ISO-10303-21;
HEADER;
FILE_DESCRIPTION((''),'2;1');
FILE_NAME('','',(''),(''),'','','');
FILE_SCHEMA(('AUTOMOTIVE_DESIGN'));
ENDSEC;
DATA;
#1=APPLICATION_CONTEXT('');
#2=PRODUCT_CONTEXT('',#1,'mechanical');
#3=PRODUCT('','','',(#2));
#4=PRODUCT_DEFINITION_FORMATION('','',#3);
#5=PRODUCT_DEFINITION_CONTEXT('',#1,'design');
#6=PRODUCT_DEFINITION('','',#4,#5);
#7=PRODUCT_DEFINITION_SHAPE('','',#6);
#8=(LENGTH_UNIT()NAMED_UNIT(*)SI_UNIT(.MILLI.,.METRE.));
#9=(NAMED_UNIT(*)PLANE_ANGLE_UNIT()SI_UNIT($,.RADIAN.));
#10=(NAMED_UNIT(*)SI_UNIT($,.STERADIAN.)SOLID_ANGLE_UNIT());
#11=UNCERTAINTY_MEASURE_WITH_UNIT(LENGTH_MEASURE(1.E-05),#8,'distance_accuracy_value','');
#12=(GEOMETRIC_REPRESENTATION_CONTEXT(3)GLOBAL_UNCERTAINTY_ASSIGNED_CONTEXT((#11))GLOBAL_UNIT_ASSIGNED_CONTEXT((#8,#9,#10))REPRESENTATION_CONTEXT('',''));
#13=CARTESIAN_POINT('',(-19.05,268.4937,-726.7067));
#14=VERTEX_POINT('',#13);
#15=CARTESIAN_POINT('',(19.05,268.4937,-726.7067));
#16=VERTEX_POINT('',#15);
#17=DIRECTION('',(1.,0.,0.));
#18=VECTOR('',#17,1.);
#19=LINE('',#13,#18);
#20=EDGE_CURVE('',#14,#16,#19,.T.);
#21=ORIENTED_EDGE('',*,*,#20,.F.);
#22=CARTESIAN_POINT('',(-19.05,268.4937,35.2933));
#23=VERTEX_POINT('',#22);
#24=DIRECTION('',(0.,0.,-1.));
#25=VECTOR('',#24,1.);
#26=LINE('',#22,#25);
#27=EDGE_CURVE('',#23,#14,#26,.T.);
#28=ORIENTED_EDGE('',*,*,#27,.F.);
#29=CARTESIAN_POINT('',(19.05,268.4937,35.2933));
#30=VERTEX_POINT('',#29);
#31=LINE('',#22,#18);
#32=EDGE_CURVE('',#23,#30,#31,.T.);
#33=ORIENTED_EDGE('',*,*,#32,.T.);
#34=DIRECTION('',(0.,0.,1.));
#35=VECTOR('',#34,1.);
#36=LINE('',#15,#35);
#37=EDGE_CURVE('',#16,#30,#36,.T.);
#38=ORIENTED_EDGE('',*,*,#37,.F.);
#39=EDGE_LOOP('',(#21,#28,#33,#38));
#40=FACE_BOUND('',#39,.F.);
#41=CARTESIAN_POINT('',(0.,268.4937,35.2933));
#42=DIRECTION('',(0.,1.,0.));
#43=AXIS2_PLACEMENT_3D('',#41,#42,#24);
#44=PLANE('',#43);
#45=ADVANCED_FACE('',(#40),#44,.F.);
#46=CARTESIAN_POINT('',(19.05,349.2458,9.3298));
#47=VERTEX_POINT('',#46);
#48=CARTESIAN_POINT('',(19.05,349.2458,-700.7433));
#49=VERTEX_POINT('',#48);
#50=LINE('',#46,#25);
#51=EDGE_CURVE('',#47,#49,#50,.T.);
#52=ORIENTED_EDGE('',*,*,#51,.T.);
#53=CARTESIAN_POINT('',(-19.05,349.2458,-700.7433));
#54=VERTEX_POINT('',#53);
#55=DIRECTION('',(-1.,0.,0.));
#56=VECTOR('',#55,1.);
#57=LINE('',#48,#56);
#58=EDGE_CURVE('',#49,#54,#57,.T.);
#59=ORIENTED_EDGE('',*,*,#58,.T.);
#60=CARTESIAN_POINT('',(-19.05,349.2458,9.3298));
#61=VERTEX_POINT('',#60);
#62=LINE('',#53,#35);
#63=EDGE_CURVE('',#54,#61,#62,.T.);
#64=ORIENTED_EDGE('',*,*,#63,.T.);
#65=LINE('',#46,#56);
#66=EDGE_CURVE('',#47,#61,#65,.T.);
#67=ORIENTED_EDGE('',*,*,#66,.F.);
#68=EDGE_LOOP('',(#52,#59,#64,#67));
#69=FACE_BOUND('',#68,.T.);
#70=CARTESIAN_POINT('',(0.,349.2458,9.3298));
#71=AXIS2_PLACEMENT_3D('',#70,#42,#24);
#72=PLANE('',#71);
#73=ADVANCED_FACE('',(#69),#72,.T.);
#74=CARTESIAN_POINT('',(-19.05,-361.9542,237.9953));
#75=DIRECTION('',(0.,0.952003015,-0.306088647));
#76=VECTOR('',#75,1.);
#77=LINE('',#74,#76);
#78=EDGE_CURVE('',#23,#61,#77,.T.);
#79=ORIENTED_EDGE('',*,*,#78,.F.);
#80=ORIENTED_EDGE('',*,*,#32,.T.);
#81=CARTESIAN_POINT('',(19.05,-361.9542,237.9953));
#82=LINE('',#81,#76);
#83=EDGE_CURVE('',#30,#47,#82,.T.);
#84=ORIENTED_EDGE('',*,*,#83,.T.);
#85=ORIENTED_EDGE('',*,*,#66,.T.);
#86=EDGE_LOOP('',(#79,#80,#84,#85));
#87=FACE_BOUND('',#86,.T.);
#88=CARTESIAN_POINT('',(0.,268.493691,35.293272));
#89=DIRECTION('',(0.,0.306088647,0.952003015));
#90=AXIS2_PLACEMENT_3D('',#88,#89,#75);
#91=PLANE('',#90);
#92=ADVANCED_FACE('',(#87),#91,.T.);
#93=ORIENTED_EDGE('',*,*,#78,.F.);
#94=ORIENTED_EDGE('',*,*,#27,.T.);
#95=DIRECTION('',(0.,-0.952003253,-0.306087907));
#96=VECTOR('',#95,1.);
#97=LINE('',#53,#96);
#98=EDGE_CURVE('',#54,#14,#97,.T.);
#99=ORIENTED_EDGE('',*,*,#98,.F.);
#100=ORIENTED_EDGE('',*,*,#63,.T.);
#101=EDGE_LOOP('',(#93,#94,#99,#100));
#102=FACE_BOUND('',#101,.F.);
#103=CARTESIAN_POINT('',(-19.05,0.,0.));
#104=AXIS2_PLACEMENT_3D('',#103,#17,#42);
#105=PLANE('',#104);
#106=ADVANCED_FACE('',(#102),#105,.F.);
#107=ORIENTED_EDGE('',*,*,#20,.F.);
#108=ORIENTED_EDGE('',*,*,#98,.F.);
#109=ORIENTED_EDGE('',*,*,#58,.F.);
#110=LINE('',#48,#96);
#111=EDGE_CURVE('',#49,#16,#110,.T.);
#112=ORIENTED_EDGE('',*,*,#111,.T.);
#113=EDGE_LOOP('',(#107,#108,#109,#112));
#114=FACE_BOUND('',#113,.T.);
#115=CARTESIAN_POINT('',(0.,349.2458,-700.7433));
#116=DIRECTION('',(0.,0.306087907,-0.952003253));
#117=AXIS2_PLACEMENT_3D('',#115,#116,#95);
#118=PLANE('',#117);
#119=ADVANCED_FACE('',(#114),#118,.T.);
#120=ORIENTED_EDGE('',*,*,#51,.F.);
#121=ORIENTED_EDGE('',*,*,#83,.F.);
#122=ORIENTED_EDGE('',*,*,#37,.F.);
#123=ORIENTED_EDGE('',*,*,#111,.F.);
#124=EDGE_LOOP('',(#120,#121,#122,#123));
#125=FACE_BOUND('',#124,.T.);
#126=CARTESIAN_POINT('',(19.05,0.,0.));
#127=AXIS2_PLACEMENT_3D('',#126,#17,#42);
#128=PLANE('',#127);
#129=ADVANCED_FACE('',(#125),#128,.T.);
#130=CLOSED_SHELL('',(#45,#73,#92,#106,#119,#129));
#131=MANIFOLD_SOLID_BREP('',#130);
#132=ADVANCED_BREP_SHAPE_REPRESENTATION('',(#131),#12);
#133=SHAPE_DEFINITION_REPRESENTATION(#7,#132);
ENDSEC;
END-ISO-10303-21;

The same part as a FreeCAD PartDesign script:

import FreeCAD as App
import Part
import Sketcher

V = App.Vector
Q = App.Units.Quantity

doc = App.newDocument("Part")
body = doc.addObject("PartDesign::Body", "Body")

# Sketch on YZ plane
sketch1 = body.newObject("Sketcher::SketchObject", "Sketch")
sketch1.AttachmentSupport = (doc.getObject("YZ_Plane"), [""])
sketch1.MapMode = "FlatFace"
sketch1.addGeometry([
    Part.LineSegment(V(349.2458, 9.3298, 0), V(268.493691, 35.293272, 0)),
    Part.LineSegment(V(268.4937, 35.2933, 0), V(268.4937, -726.7067, 0)),
    Part.LineSegment(V(268.4937, -726.7067, 0), V(349.2458, -700.7433, 0)),
    Part.LineSegment(V(349.2458, -700.7433, 0), V(349.2458, 9.3298, 0)),
], False)
sketch1.addConstraint([
    Sketcher.Constraint("Coincident", 0, 2, 1, 1),
    Sketcher.Constraint("Coincident", 1, 2, 2, 1),
    Sketcher.Constraint("Coincident", 2, 2, 3, 1),
    Sketcher.Constraint("Coincident", 3, 2, 0, 1),
    Sketcher.Constraint("Vertical", 1),
    Sketcher.Constraint("Vertical", 3),
    Sketcher.Constraint("Equal", 0, 2),
    Sketcher.Constraint("DistanceY", 1, 2, 1, 1, Q("30 in")),
    Sketcher.Constraint("DistanceX", 1, 2, 2, 2, Q("80.752 mm")),
    Sketcher.Constraint("Distance", 0, Q("3.3395 in")),
    Sketcher.Constraint("DistanceY", -1, 1, 0, 2, Q("1.3895 in")),
    Sketcher.Constraint("DistanceX", -1, 1, 0, 2, Q("268.4937 mm")),
])
pad1 = body.newObject("PartDesign::Pad", "Pad")
pad1.Profile = sketch1
pad1.Length = Q("1.5 in")
pad1.Midplane = True

doc.recompute()
